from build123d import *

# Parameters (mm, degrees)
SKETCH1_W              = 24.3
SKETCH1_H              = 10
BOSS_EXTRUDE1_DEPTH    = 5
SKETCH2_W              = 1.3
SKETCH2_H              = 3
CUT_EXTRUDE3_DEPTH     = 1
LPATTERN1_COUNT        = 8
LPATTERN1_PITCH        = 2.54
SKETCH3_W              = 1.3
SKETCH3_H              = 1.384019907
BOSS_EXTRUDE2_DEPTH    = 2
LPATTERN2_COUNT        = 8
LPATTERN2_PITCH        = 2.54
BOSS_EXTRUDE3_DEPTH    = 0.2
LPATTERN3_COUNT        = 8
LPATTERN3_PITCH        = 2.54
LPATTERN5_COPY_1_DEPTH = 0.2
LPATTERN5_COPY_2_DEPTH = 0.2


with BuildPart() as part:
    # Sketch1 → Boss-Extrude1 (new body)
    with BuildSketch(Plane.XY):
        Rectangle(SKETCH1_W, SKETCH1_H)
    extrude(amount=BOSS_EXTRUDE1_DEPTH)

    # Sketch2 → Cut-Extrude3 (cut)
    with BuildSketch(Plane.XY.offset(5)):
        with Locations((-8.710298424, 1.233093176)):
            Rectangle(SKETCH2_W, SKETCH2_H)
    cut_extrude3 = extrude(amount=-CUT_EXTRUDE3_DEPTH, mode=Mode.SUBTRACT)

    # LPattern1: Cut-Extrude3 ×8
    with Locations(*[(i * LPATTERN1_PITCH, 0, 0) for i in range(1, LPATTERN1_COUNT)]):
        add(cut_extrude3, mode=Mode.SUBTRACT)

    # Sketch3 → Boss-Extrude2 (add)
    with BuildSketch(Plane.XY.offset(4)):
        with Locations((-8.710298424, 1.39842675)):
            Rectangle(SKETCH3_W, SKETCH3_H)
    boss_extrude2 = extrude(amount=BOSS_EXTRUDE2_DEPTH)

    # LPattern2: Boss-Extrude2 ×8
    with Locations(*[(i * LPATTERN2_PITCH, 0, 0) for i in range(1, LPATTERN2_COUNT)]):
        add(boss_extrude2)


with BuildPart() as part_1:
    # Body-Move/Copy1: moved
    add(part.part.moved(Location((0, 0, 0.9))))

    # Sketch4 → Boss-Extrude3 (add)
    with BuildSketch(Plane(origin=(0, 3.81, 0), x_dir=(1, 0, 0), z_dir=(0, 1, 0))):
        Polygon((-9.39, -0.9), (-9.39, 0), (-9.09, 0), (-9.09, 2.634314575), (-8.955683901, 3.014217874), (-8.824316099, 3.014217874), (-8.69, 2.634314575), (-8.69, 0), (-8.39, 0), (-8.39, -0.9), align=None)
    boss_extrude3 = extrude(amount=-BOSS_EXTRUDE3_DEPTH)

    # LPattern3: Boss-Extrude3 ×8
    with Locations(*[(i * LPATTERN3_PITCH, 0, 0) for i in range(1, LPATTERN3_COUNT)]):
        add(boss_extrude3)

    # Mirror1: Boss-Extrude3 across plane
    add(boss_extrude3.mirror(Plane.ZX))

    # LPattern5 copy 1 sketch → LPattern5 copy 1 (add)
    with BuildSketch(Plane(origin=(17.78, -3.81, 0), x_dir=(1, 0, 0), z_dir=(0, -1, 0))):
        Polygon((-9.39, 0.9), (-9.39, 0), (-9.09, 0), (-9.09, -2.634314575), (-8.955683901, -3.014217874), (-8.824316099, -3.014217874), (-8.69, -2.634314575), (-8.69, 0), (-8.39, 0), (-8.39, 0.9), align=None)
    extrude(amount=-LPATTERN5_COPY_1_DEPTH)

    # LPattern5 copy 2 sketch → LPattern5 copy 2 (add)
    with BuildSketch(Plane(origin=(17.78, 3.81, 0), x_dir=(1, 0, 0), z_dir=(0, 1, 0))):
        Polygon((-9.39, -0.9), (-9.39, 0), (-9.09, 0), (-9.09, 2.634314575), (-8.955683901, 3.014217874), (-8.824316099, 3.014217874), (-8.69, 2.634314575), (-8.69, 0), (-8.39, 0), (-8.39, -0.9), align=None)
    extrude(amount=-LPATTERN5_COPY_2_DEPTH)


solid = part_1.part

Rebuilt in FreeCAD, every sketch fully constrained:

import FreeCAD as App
import Part
import Sketcher

V = App.Vector

doc = App.newDocument("Part")
body = doc.addObject("PartDesign::Body", "Body")

# Sketch on XY plane
sketch1 = body.newObject("Sketcher::SketchObject", "Sketch")
sketch1.AttachmentSupport = (doc.getObject("XY_Plane"), [""])
sketch1.MapMode = "FlatFace"
sketch1.addGeometry(Part.LineSegment(V(-12, 5, 0), V(-12, -5, 0)), False)
sketch1.addGeometry(Part.LineSegment(V(-12, -5, 0), V(12, -5, 0)), False)
sketch1.addGeometry(Part.LineSegment(V(12, -5, 0), V(12, 5, 0)), False)
sketch1.addGeometry(Part.LineSegment(V(12, 5, 0), V(-12, 5, 0)), False)
sketch1.addConstraint(Sketcher.Constraint("Coincident", 0, 2, 1, 1))
sketch1.addConstraint(Sketcher.Constraint("Coincident", 1, 2, 2, 1))
sketch1.addConstraint(Sketcher.Constraint("Coincident", 2, 2, 3, 1))
sketch1.addConstraint(Sketcher.Constraint("Coincident", 3, 2, 0, 1))
sketch1.addConstraint(Sketcher.Constraint("Vertical", 0))
sketch1.addConstraint(Sketcher.Constraint("Horizontal", 1))
sketch1.addConstraint(Sketcher.Constraint("Vertical", 2))
sketch1.addConstraint(Sketcher.Constraint("Horizontal", 3))
sketch1.addConstraint(Sketcher.Constraint("Symmetric", 0, 2, 2, 2, -1, 1))
sketch1.addConstraint(Sketcher.Constraint("DistanceY", 0, 2, 0, 1, 10.0))
sketch1.addConstraint(Sketcher.Constraint("DistanceX", 1, 1, 1, 2, 24.3))
pad1 = body.newObject("PartDesign::Pad", "Pad")
pad1.Profile = sketch1
pad1.Length = 5

# Sketch on XY plane
sketch2 = body.newObject("Sketcher::SketchObject", "Sketch001")
sketch2.AttachmentSupport = (doc.getObject("XY_Plane"), [""])
sketch2.MapMode = "FlatFace"
sketch2.AttachmentOffset = App.Placement(V(0, 0, 5), App.Rotation())
sketch2.addGeometry(Part.LineSegment(V(-9.4, 2.7, 0), V(-9.4, -0.3, 0)), False)
sketch2.addGeometry(Part.LineSegment(V(-9.4, -0.3, 0), V(-8.1, -0.3, 0)), False)
sketch2.addGeometry(Part.LineSegment(V(-8.1, -0.3, 0), V(-8.1, 2.7, 0)), False)
sketch2.addGeometry(Part.LineSegment(V(-8.1, 2.7, 0), V(-9.4, 2.7, 0)), False)
sketch2.addConstraint(Sketcher.Constraint("Coincident", 0, 2, 1, 1))
sketch2.addConstraint(Sketcher.Constraint("Coincident", 1, 2, 2, 1))
sketch2.addConstraint(Sketcher.Constraint("Coincident", 2, 2, 3, 1))
sketch2.addConstraint(Sketcher.Constraint("Coincident", 3, 2, 0, 1))
sketch2.addConstraint(Sketcher.Constraint("Vertical", 0))
sketch2.addConstraint(Sketcher.Constraint("Horizontal", 1))
sketch2.addConstraint(Sketcher.Constraint("Vertical", 2))
sketch2.addConstraint(Sketcher.Constraint("Horizontal", 3))
sketch2.addConstraint(Sketcher.Constraint("DistanceY", 0, 2, 0, 1, 3.0))
sketch2.addConstraint(Sketcher.Constraint("DistanceX", 1, 1, 1, 2, 1.3))
sketch2.addConstraint(Sketcher.Constraint("DistanceX", 0, 2, -1, 1, 9.360298))
sketch2.addConstraint(Sketcher.Constraint("DistanceY", 0, 2, -1, 1, 0.266907))
pocket1 = body.newObject("PartDesign::Pocket", "Pocket")
pocket1.Profile = sketch2
pocket1.Length = 1
doc.recompute()

linearpattern = body.newObject("PartDesign::LinearPattern", "LinearPattern")
linearpattern.Originals = [pocket1]
linearpattern.Direction = (doc.getObject("X_Axis"), [""])
linearpattern.Mode = "offset"
linearpattern.Offset = 2.54
linearpattern.Occurrences = 8
body.Tip = linearpattern

# Sketch on XY plane
sketch3 = body.newObject("Sketcher::SketchObject", "Sketch002")
sketch3.AttachmentSupport = (doc.getObject("XY_Plane"), [""])
sketch3.MapMode = "FlatFace"
sketch3.AttachmentOffset = App.Placement(V(0, 0, 4), App.Rotation())
sketch3.addGeometry(Part.LineSegment(V(-9.4, 2.1, 0), V(-9.4, 0.7, 0)), False)
sketch3.addGeometry(Part.LineSegment(V(-9.4, 0.7, 0), V(-8.1, 0.7, 0)), False)
sketch3.addGeometry(Part.LineSegment(V(-8.1, 0.7, 0), V(-8.1, 2.1, 0)), False)
sketch3.addGeometry(Part.LineSegment(V(-8.1, 2.1, 0), V(-9.4, 2.1, 0)), False)
sketch3.addConstraint(Sketcher.Constraint("Coincident", 0, 2, 1, 1))
sketch3.addConstraint(Sketcher.Constraint("Coincident", 1, 2, 2, 1))
sketch3.addConstraint(Sketcher.Constraint("Coincident", 2, 2, 3, 1))
sketch3.addConstraint(Sketcher.Constraint("Coincident", 3, 2, 0, 1))
sketch3.addConstraint(Sketcher.Constraint("Vertical", 0))
sketch3.addConstraint(Sketcher.Constraint("Horizontal", 1))
sketch3.addConstraint(Sketcher.Constraint("Vertical", 2))
sketch3.addConstraint(Sketcher.Constraint("Horizontal", 3))
sketch3.addConstraint(Sketcher.Constraint("DistanceX", 1, 1, 1, 2, 1.3))
sketch3.addConstraint(Sketcher.Constraint("DistanceY", 0, 2, 0, 1, 1.38402))
sketch3.addConstraint(Sketcher.Constraint("DistanceX", 0, 2, -1, 1, 9.360298))
sketch3.addConstraint(Sketcher.Constraint("DistanceY", -1, 1, 0, 2, 0.706417))
pad2 = body.newObject("PartDesign::Pad", "Pad001")
pad2.Profile = sketch3
pad2.Length = 2
doc.recompute()

linearpattern2 = body.newObject("PartDesign::LinearPattern", "LinearPattern001")
linearpattern2.Originals = [pad2]
linearpattern2.Direction = (doc.getObject("X_Axis"), [""])
linearpattern2.Mode = "offset"
linearpattern2.Offset = 2.54
linearpattern2.Occurrences = 8
body.Tip = linearpattern2
body2 = doc.addObject("PartDesign::Body", "Body001")
doc.recompute()

body.Placement = App.Placement(V(0, 0, 0.9), App.Rotation(V(0, 0, 1), 0))
boolean = body2.newObject("PartDesign::Boolean", "Boolean")
boolean.Type = "Fuse"
boolean.addObjects([body])

# Sketch on XZ plane
sketch4 = body2.newObject("Sketcher::SketchObject", "Sketch003")
sketch4.AttachmentSupport = (doc.getObject("XZ_Plane001"), [""])
sketch4.MapMode = "FlatFace"
sketch4.AttachmentOffset = App.Placement(V(0, 0, -3.81), App.Rotation())
sketch4.addGeometry(Part.LineSegment(V(-9.39, 0, 0), V(-9.39, 0.9, 0)), False)
sketch4.addGeometry(Part.LineSegment(V(-9.39, 0.9, 0), V(-8.39, 0.9, 0)), False)
sketch4.addGeometry(Part.LineSegment(V(-8.39, 0.9, 0), V(-8.39, 0, 0)), False)
sketch4.addGeometry(Part.LineSegment(V(-8.39, 0, 0), V(-8.69, 0, 0)), False)
sketch4.addGeometry(Part.LineSegment(V(-8.69, 0, 0), V(-8.69, -2.63, 0)), False)
sketch4.addGeometry(Part.LineSegment(V(-8.69, -2.63, 0), V(-8.82, -3.01, 0)), False)
sketch4.addGeometry(Part.LineSegment(V(-8.82, -3.01, 0), V(-8.96, -3.01, 0)), False)
sketch4.addGeometry(Part.LineSegment(V(-8.96, -3.01, 0), V(-9.09, -2.63, 0)), False)
sketch4.addGeometry(Part.LineSegment(V(-9.09, -2.63, 0), V(-9.09, 0, 0)), False)
sketch4.addGeometry(Part.LineSegment(V(-9.09, 0, 0), V(-9.39, 0, 0)), False)
sketch4.addConstraint(Sketcher.Constraint("Coincident", 0, 2, 1, 1))
sketch4.addConstraint(Sketcher.Constraint("Coincident", 1, 2, 2, 1))
sketch4.addConstraint(Sketcher.Constraint("Coincident", 2, 2, 3, 1))
sketch4.addConstraint(Sketcher.Constraint("Coincident", 3, 2, 4, 1))
sketch4.addConstraint(Sketcher.Constraint("Coincident", 4, 2, 5, 1))
sketch4.addConstraint(Sketcher.Constraint("Coincident", 5, 2, 6, 1))
sketch4.addConstraint(Sketcher.Constraint("Coincident", 6, 2, 7, 1))
sketch4.addConstraint(Sketcher.Constraint("Coincident", 7, 2, 8, 1))
sketch4.addConstraint(Sketcher.Constraint("Coincident", 8, 2, 9, 1))
sketch4.addConstraint(Sketcher.Constraint("Coincident", 9, 2, 0, 1))
sketch4.addConstraint(Sketcher.Constraint("Vertical", 0))
sketch4.addConstraint(Sketcher.Constraint("Horizontal", 1))
sketch4.addConstraint(Sketcher.Constraint("Vertical", 2))
sketch4.addConstraint(Sketcher.Constraint("Horizontal", 3))
sketch4.addConstraint(Sketcher.Constraint("Vertical", 4))
sketch4.addConstraint(Sketcher.Constraint("Horizontal", 6))
sketch4.addConstraint(Sketcher.Constraint("Vertical", 8))
sketch4.addConstraint(Sketcher.Constraint("Horizontal", 9))
sketch4.addConstraint(Sketcher.Constraint("PointOnObject", 2, 2, -1))
sketch4.addConstraint(Sketcher.Constraint("PointOnObject", 8, 2, -1))
sketch4.addConstraint(Sketcher.Constraint("Horizontal", 4, 2, 7, 2))
sketch4.addConstraint(Sketcher.Constraint("Equal", 3, 9))
sketch4.addConstraint(Sketcher.Constraint("Equal", 5, 7))
sketch4.addConstraint(Sketcher.Constraint("DistanceX", 1, 1, 1, 2, 1.0))
sketch4.addConstraint(Sketcher.Constraint("DistanceX", 3, 2, 3, 1, 0.3))
sketch4.addConstraint(Sketcher.Constraint("DistanceY", 0, 1, 0, 2, 0.9))
sketch4.addConstraint(Sketcher.Constraint("DistanceX", 0, 2, -1, 1, 9.39))
sketch4.addConstraint(Sketcher.Constraint("Distance", 5, 0.402948))
sketch4.addConstraint(Sketcher.Constraint("DistanceX", 6, 2, 6, 1, 0.131368))
sketch4.addConstraint(Sketcher.Constraint("DistanceY", 4, 2, 4, 1, 2.634315))
pad3 = body2.newObject("PartDesign::Pad", "Pad002")
pad3.Profile = sketch4
pad3.Length = 0.2
doc.recompute()

linearpattern3 = body2.newObject("PartDesign::LinearPattern", "LinearPattern002")
linearpattern3.Originals = [pad3]
linearpattern3.Direction = (doc.getObject("X_Axis001"), [""])
linearpattern3.Mode = "offset"
linearpattern3.Offset = 2.54
linearpattern3.Occurrences = 8
body2.Tip = linearpattern3
doc.recompute()

mirrored = body2.newObject("PartDesign::Mirrored", "Mirrored")
mirrored.Originals = [pad3]
mirrored.MirrorPlane = (doc.getObject("XZ_Plane001"), [""])
body2.Tip = mirrored

# Sketch on XZ plane
sketch5 = body2.newObject("Sketcher::SketchObject", "Sketch004")
sketch5.AttachmentSupport = (doc.getObject("XZ_Plane001"), [""])
sketch5.MapMode = "FlatFace"
sketch5.AttachmentOffset = App.Placement(V(0, 0, 3.81), App.Rotation())
sketch5.addGeometry(Part.LineSegment(V(8.39, 0.9, 0), V(8.39, 0, 0)), False)
sketch5.addGeometry(Part.LineSegment(V(8.39, 0, 0), V(8.69, 0, 0)), False)
sketch5.addGeometry(Part.LineSegment(V(8.69, 0, 0), V(8.69, -2.63, 0)), False)
sketch5.addGeometry(Part.LineSegment(V(8.69, -2.63, 0), V(8.82, -3.01, 0)), False)
sketch5.addGeometry(Part.LineSegment(V(8.82, -3.01, 0), V(8.96, -3.01, 0)), False)
sketch5.addGeometry(Part.LineSegment(V(8.96, -3.01, 0), V(9.09, -2.63, 0)), False)
sketch5.addGeometry(Part.LineSegment(V(9.09, -2.63, 0), V(9.09, 0, 0)), False)
sketch5.addGeometry(Part.LineSegment(V(9.09, 0, 0), V(9.39, 0, 0)), False)
sketch5.addGeometry(Part.LineSegment(V(9.39, 0, 0), V(9.39, 0.9, 0)), False)
sketch5.addGeometry(Part.LineSegment(V(9.39, 0.9, 0), V(8.39, 0.9, 0)), False)
sketch5.addConstraint(Sketcher.Constraint("Coincident", 0, 2, 1, 1))
sketch5.addConstraint(Sketcher.Constraint("Coincident", 1, 2, 2, 1))
sketch5.addConstraint(Sketcher.Constraint("Coincident", 2, 2, 3, 1))
sketch5.addConstraint(Sketcher.Constraint("Coincident", 3, 2, 4, 1))
sketch5.addConstraint(Sketcher.Constraint("Coincident", 4, 2, 5, 1))
sketch5.addConstraint(Sketcher.Constraint("Coincident", 5, 2, 6, 1))
sketch5.addConstraint(Sketcher.Constraint("Coincident", 6, 2, 7, 1))
sketch5.addConstraint(Sketcher.Constraint("Coincident", 7, 2, 8, 1))
sketch5.addConstraint(Sketcher.Constraint("Coincident", 8, 2, 9, 1))
sketch5.addConstraint(Sketcher.Constraint("Coincident", 9, 2, 0, 1))
sketch5.addConstraint(Sketcher.Constraint("Vertical", 0))
sketch5.addConstraint(Sketcher.Constraint("Horizontal", 1))
sketch5.addConstraint(Sketcher.Constraint("Vertical", 2))
sketch5.addConstraint(Sketcher.Constraint("Horizontal", 4))
sketch5.addConstraint(Sketcher.Constraint("Vertical", 6))
sketch5.addConstraint(Sketcher.Constraint("Horizontal", 7))
sketch5.addConstraint(Sketcher.Constraint("Vertical", 8))
sketch5.addConstraint(Sketcher.Constraint("Horizontal", 9))
sketch5.addConstraint(Sketcher.Constraint("PointOnObject", 0, 2, -1))
sketch5.addConstraint(Sketcher.Constraint("PointOnObject", 6, 2, -1))
sketch5.addConstraint(Sketcher.Constraint("Horizontal", 2, 2, 5, 2))
sketch5.addConstraint(Sketcher.Constraint("Equal", 1, 7))
sketch5.addConstraint(Sketcher.Constraint("Equal", 3, 5))
sketch5.addConstraint(Sketcher.Constraint("DistanceX", 9, 2, 9, 1, 1.0))
sketch5.addConstraint(Sketcher.Constraint("DistanceX", 1, 1, 1, 2, 0.3))
sketch5.addConstraint(Sketcher.Constraint("DistanceY", 0, 2, 0, 1, 0.9))
sketch5.addConstraint(Sketcher.Constraint("DistanceX", -1, 1, 0, 2, 8.39))
sketch5.addConstraint(Sketcher.Constraint("Distance", 3, 0.402948))
sketch5.addConstraint(Sketcher.Constraint("DistanceX", 4, 1, 4, 2, 0.131368))
sketch5.addConstraint(Sketcher.Constraint("DistanceY", 2, 2, 2, 1, 2.634315))
pad4 = body2.newObject("PartDesign::Pad", "Pad003")
pad4.Profile = sketch5
pad4.Length = 0.2
pad4.Reversed = True

# Sketch on XZ plane
sketch6 = body2.newObject("Sketcher::SketchObject", "Sketch005")
sketch6.AttachmentSupport = (doc.getObject("XZ_Plane001"), [""])
sketch6.MapMode = "FlatFace"
sketch6.AttachmentOffset = App.Placement(V(0, 0, -3.81), App.Rotation())
sketch6.addGeometry(Part.LineSegment(V(8.39, 0, 0), V(8.39, 0.9, 0)), False)
sketch6.addGeometry(Part.LineSegment(V(8.39, 0.9, 0), V(9.39, 0.9, 0)), False)
sketch6.addGeometry(Part.LineSegment(V(9.39, 0.9, 0), V(9.39, 0, 0)), False)
sketch6.addGeometry(Part.LineSegment(V(9.39, 0, 0), V(9.09, 0, 0)), False)
sketch6.addGeometry(Part.LineSegment(V(9.09, 0, 0), V(9.09, -2.63, 0)), False)
sketch6.addGeometry(Part.LineSegment(V(9.09, -2.63, 0), V(8.96, -3.01, 0)), False)
sketch6.addGeometry(Part.LineSegment(V(8.96, -3.01, 0), V(8.82, -3.01, 0)), False)
sketch6.addGeometry(Part.LineSegment(V(8.82, -3.01, 0), V(8.69, -2.63, 0)), False)
sketch6.addGeometry(Part.LineSegment(V(8.69, -2.63, 0), V(8.69, 0, 0)), False)
sketch6.addGeometry(Part.LineSegment(V(8.69, 0, 0), V(8.39, 0, 0)), False)
sketch6.addConstraint(Sketcher.Constraint("Coincident", 0, 2, 1, 1))
sketch6.addConstraint(Sketcher.Constraint("Coincident", 1, 2, 2, 1))
sketch6.addConstraint(Sketcher.Constraint("Coincident", 2, 2, 3, 1))
sketch6.addConstraint(Sketcher.Constraint("Coincident", 3, 2, 4, 1))
sketch6.addConstraint(Sketcher.Constraint("Coincident", 4, 2, 5, 1))
sketch6.addConstraint(Sketcher.Constraint("Coincident", 5, 2, 6, 1))
sketch6.addConstraint(Sketcher.Constraint("Coincident", 6, 2, 7, 1))
sketch6.addConstraint(Sketcher.Constraint("Coincident", 7, 2, 8, 1))
sketch6.addConstraint(Sketcher.Constraint("Coincident", 8, 2, 9, 1))
sketch6.addConstraint(Sketcher.Constraint("Coincident", 9, 2, 0, 1))
sketch6.addConstraint(Sketcher.Constraint("Vertical", 0))
sketch6.addConstraint(Sketcher.Constraint("Horizontal", 1))
sketch6.addConstraint(Sketcher.Constraint("Vertical", 2))
sketch6.addConstraint(Sketcher.Constraint("Horizontal", 3))
sketch6.addConstraint(Sketcher.Constraint("Vertical", 4))
sketch6.addConstraint(Sketcher.Constraint("Horizontal", 6))
sketch6.addConstraint(Sketcher.Constraint("Vertical", 8))
sketch6.addConstraint(Sketcher.Constraint("Horizontal", 9))
sketch6.addConstraint(Sketcher.Constraint("PointOnObject", 2, 2, -1))
sketch6.addConstraint(Sketcher.Constraint("PointOnObject", 8, 2, -1))
sketch6.addConstraint(Sketcher.Constraint("Horizontal", 4, 2, 7, 2))
sketch6.addConstraint(Sketcher.Constraint("Equal", 3, 9))
sketch6.addConstraint(Sketcher.Constraint("Equal", 5, 7))
sketch6.addConstraint(Sketcher.Constraint("DistanceX", 1, 1, 1, 2, 1.0))
sketch6.addConstraint(Sketcher.Constraint("DistanceX", 3, 2, 3, 1, 0.3))
sketch6.addConstraint(Sketcher.Constraint("DistanceY", 0, 1, 0, 2, 0.9))
sketch6.addConstraint(Sketcher.Constraint("DistanceX", -1, 1, 0, 2, 8.39))
sketch6.addConstraint(Sketcher.Constraint("Distance", 5, 0.402948))
sketch6.addConstraint(Sketcher.Constraint("DistanceX", 6, 2, 6, 1, 0.131368))
sketch6.addConstraint(Sketcher.Constraint("DistanceY", 4, 2, 4, 1, 2.634315))
pad5 = body2.newObject("PartDesign::Pad", "Pad004")
pad5.Profile = sketch6
pad5.Length = 0.2

doc.recompute()
